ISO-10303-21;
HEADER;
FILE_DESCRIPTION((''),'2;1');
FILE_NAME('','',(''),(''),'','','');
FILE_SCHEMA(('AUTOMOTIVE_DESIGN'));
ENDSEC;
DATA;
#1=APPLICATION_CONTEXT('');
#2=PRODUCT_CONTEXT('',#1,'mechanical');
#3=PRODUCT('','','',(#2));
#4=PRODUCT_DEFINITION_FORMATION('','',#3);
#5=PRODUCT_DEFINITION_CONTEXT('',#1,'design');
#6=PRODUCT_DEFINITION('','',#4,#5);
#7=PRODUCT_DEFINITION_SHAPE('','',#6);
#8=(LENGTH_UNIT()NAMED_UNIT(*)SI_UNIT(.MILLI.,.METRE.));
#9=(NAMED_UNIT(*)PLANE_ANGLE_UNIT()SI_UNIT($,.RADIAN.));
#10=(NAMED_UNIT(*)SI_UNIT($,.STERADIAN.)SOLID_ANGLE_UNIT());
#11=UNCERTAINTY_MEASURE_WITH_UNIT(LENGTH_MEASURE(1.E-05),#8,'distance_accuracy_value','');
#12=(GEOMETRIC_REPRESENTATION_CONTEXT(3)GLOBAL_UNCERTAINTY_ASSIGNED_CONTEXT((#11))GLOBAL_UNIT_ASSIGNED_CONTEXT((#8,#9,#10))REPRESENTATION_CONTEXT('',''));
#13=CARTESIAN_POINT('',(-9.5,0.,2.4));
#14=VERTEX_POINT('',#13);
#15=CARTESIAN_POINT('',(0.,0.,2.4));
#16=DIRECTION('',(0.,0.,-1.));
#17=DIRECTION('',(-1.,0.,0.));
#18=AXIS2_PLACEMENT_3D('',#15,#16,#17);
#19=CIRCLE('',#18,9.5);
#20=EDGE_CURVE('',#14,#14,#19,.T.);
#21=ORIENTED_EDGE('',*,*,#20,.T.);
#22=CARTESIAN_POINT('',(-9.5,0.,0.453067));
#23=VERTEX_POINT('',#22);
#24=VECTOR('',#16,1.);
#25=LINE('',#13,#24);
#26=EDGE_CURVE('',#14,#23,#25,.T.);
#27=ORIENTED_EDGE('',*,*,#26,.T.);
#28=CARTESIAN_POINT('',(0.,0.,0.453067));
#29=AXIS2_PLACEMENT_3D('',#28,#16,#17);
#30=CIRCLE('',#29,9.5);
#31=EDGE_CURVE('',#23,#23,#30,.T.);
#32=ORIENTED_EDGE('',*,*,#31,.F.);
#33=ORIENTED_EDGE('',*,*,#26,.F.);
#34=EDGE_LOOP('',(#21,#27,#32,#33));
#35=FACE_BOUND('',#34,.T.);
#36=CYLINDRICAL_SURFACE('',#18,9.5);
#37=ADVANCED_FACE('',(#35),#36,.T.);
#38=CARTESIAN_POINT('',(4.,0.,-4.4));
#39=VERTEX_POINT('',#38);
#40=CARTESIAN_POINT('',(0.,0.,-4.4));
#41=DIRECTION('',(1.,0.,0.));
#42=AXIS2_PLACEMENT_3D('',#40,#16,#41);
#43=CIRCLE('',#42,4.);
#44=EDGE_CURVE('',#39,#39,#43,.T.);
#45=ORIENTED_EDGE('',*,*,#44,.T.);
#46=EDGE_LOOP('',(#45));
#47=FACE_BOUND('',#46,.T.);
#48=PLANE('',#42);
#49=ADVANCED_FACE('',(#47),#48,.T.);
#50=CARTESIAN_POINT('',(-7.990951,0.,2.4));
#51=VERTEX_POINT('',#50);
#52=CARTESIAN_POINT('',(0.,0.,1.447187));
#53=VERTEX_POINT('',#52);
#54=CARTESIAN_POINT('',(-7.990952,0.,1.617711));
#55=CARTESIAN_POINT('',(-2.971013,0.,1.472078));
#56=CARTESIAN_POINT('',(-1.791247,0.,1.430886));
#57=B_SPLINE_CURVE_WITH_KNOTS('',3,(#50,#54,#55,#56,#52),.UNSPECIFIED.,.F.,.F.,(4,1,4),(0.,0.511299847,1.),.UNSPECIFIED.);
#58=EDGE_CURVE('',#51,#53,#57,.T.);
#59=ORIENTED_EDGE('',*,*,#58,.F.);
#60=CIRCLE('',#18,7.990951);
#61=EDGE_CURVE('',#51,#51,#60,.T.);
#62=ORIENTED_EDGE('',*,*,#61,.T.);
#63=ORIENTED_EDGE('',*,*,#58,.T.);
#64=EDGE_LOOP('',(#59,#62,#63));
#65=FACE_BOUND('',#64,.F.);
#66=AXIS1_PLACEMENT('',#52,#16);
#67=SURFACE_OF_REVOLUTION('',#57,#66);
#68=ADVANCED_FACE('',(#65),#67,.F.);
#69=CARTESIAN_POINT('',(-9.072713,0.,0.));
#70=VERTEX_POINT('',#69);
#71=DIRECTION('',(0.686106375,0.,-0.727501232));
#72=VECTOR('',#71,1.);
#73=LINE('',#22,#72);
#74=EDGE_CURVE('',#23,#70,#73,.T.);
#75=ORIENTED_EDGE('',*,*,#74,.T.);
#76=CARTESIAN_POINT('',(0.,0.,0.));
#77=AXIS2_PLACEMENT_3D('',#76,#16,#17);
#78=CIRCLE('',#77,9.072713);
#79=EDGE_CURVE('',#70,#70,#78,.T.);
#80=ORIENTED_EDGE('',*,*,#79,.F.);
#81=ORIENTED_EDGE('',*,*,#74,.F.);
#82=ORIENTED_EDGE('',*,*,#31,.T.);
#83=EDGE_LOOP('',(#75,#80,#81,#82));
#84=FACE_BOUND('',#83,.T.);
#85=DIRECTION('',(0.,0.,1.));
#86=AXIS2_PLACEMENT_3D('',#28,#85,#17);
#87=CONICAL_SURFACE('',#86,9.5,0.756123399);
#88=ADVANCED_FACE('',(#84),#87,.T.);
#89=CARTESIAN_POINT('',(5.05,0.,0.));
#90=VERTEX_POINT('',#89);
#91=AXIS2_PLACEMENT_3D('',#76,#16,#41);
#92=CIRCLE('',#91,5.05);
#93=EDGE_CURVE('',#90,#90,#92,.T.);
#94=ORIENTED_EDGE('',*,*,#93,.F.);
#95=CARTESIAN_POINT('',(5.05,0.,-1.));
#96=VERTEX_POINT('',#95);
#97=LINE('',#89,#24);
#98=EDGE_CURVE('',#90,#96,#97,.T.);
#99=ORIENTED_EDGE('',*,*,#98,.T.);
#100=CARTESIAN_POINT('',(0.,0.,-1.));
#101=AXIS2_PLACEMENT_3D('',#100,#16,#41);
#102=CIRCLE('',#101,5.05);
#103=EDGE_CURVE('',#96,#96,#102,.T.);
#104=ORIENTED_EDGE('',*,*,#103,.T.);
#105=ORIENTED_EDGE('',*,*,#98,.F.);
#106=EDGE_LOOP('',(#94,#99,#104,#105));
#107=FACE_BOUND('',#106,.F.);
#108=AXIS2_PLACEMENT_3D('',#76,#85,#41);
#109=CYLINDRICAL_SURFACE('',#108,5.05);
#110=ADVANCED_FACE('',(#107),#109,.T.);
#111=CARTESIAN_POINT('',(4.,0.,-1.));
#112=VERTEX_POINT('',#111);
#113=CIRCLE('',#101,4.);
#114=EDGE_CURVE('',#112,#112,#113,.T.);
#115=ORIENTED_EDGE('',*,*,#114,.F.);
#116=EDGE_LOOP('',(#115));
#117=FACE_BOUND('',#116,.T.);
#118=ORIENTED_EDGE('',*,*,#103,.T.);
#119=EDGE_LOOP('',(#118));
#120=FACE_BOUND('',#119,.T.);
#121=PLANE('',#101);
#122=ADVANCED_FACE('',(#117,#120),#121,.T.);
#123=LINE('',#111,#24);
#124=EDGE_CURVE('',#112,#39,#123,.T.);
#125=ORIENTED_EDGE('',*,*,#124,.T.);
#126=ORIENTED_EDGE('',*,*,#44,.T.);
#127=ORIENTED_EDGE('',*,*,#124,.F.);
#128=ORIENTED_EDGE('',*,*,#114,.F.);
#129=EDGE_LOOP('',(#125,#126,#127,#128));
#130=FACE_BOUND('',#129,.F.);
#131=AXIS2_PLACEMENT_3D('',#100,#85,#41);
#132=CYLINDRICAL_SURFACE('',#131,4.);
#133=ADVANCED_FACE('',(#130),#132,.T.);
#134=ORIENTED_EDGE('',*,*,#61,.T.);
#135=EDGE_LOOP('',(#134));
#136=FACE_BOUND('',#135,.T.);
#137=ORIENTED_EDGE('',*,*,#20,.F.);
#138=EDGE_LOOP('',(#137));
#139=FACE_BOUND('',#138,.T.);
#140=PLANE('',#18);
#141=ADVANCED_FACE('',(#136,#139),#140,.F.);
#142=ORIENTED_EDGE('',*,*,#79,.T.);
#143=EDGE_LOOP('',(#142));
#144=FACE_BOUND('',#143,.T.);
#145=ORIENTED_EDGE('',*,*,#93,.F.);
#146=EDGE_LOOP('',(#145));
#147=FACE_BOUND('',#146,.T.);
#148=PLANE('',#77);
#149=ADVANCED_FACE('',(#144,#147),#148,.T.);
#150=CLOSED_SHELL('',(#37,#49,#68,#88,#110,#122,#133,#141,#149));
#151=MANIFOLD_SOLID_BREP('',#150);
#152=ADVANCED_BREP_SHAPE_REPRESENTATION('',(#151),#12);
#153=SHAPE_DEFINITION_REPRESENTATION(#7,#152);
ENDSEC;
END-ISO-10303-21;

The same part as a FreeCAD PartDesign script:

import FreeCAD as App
import Part
import Sketcher
from FreeCAD import Vector

doc = App.newDocument("Part")
body = doc.addObject("PartDesign::Body", "Body")

# Sketch on XZ plane
sketch1 = doc.addObject("Sketcher::SketchObject", "Sketch")
body.addObject(sketch1)
sketch1.AttachmentSupport = (doc.XZ_Plane, [""])
sketch1.MapMode = "FlatFace"
sketch1.addGeometry([
    Part.LineSegment(Vector(-7.990951, 2.4, 0), Vector(-9.5, 2.4, 0)),  # 0
    Part.LineSegment(Vector(-9.5, 2.4, 0), Vector(-9.5, 0.453067, 0)),  # 1
    Part.LineSegment(Vector(-9.5, 0.453067, 0), Vector(-9.072713, 0, 0)),  # 2
    Part.LineSegment(Vector(-9.072713, 0, 0), Vector(0, 0, 0)),  # 3
    Part.LineSegment(Vector(0, 0, 0), Vector(0, 1.447187, 0)),  # 4
    Part.BSplineCurve([Vector(-7.990951, 2.4, 0), Vector(-7.990952, 1.617711, 0), Vector(-2.971013, 1.472078, 0), Vector(-1.791247, 1.430886, 0), Vector(0, 1.447187, 0)], [4, 1, 4], [0, 0.511299847, 1], False, 3, [1, 1, 1, 1, 1], False),  # 5
], False)
sketch1.addConstraint([
    Sketcher.Constraint("Block", 5),
    Sketcher.Constraint("Coincident", 0, 2, 1, 1),
    Sketcher.Constraint("Coincident", 1, 2, 2, 1),
    Sketcher.Constraint("Coincident", 2, 2, 3, 1),
    Sketcher.Constraint("Coincident", 3, 2, 4, 1),
    Sketcher.Constraint("Coincident", 4, 2, 5, 2),
    Sketcher.Constraint("Coincident", 5, 1, 0, 1),
    Sketcher.Constraint("Horizontal", 0),
    Sketcher.Constraint("Vertical", 1),
    Sketcher.Constraint("Horizontal", 3),
    Sketcher.Constraint("Vertical", 4),
    Sketcher.Constraint("PointOnObject", 2, 2, -1),
    Sketcher.Constraint("DistanceX", 0, 2, -1, 1, 9.5),
    Sketcher.Constraint("Distance", 2, 0.622771),
    Sketcher.Constraint("DistanceX", 3, 1, 3, 2, 9.072713),
])
revolution = doc.addObject("PartDesign::Revolution", "Revolution")
body.addObject(revolution)
revolution.Profile = sketch1
revolution.ReferenceAxis = (sketch1, ["V_Axis"])
revolution.Angle = 360

# Sketch on XY plane
sketch2 = doc.addObject("Sketcher::SketchObject", "Sketch001")
body.addObject(sketch2)
sketch2.AttachmentSupport = (doc.XY_Plane, [""])
sketch2.MapMode = "FlatFace"
sketch2.addGeometry(Part.Circle(Vector(0, 0, 0), Vector(0, 0, 1), 5), False)
sketch2.addConstraint([
    Sketcher.Constraint("Coincident", 0, 3, -1, 1),
    Sketcher.Constraint("Diameter", 0, 10.1),
])
pad1 = doc.addObject("PartDesign::Pad", "Pad")
body.addObject(pad1)
pad1.Profile = sketch2
pad1.Length = 1
pad1.Reversed = True

# Sketch on XY plane
sketch3 = doc.addObject("Sketcher::SketchObject", "Sketch002")
body.addObject(sketch3)
sketch3.AttachmentSupport = (doc.XY_Plane, [""])
sketch3.MapMode = "FlatFace"
sketch3.AttachmentOffset = App.Placement(Vector(0, 0, -1), App.Rotation())
sketch3.addGeometry(Part.Circle(Vector(0, 0, 0), Vector(0, 0, 1), 4), False)
sketch3.addConstraint([
    Sketcher.Constraint("Coincident", 0, 3, -1, 1),
    Sketcher.Constraint("Diameter", 0, 8.0),
])
pad2 = doc.addObject("PartDesign::Pad", "Pad001")
body.addObject(pad2)
pad2.Profile = sketch3
pad2.Length = 3.4
pad2.Reversed = True

doc.recompute()
